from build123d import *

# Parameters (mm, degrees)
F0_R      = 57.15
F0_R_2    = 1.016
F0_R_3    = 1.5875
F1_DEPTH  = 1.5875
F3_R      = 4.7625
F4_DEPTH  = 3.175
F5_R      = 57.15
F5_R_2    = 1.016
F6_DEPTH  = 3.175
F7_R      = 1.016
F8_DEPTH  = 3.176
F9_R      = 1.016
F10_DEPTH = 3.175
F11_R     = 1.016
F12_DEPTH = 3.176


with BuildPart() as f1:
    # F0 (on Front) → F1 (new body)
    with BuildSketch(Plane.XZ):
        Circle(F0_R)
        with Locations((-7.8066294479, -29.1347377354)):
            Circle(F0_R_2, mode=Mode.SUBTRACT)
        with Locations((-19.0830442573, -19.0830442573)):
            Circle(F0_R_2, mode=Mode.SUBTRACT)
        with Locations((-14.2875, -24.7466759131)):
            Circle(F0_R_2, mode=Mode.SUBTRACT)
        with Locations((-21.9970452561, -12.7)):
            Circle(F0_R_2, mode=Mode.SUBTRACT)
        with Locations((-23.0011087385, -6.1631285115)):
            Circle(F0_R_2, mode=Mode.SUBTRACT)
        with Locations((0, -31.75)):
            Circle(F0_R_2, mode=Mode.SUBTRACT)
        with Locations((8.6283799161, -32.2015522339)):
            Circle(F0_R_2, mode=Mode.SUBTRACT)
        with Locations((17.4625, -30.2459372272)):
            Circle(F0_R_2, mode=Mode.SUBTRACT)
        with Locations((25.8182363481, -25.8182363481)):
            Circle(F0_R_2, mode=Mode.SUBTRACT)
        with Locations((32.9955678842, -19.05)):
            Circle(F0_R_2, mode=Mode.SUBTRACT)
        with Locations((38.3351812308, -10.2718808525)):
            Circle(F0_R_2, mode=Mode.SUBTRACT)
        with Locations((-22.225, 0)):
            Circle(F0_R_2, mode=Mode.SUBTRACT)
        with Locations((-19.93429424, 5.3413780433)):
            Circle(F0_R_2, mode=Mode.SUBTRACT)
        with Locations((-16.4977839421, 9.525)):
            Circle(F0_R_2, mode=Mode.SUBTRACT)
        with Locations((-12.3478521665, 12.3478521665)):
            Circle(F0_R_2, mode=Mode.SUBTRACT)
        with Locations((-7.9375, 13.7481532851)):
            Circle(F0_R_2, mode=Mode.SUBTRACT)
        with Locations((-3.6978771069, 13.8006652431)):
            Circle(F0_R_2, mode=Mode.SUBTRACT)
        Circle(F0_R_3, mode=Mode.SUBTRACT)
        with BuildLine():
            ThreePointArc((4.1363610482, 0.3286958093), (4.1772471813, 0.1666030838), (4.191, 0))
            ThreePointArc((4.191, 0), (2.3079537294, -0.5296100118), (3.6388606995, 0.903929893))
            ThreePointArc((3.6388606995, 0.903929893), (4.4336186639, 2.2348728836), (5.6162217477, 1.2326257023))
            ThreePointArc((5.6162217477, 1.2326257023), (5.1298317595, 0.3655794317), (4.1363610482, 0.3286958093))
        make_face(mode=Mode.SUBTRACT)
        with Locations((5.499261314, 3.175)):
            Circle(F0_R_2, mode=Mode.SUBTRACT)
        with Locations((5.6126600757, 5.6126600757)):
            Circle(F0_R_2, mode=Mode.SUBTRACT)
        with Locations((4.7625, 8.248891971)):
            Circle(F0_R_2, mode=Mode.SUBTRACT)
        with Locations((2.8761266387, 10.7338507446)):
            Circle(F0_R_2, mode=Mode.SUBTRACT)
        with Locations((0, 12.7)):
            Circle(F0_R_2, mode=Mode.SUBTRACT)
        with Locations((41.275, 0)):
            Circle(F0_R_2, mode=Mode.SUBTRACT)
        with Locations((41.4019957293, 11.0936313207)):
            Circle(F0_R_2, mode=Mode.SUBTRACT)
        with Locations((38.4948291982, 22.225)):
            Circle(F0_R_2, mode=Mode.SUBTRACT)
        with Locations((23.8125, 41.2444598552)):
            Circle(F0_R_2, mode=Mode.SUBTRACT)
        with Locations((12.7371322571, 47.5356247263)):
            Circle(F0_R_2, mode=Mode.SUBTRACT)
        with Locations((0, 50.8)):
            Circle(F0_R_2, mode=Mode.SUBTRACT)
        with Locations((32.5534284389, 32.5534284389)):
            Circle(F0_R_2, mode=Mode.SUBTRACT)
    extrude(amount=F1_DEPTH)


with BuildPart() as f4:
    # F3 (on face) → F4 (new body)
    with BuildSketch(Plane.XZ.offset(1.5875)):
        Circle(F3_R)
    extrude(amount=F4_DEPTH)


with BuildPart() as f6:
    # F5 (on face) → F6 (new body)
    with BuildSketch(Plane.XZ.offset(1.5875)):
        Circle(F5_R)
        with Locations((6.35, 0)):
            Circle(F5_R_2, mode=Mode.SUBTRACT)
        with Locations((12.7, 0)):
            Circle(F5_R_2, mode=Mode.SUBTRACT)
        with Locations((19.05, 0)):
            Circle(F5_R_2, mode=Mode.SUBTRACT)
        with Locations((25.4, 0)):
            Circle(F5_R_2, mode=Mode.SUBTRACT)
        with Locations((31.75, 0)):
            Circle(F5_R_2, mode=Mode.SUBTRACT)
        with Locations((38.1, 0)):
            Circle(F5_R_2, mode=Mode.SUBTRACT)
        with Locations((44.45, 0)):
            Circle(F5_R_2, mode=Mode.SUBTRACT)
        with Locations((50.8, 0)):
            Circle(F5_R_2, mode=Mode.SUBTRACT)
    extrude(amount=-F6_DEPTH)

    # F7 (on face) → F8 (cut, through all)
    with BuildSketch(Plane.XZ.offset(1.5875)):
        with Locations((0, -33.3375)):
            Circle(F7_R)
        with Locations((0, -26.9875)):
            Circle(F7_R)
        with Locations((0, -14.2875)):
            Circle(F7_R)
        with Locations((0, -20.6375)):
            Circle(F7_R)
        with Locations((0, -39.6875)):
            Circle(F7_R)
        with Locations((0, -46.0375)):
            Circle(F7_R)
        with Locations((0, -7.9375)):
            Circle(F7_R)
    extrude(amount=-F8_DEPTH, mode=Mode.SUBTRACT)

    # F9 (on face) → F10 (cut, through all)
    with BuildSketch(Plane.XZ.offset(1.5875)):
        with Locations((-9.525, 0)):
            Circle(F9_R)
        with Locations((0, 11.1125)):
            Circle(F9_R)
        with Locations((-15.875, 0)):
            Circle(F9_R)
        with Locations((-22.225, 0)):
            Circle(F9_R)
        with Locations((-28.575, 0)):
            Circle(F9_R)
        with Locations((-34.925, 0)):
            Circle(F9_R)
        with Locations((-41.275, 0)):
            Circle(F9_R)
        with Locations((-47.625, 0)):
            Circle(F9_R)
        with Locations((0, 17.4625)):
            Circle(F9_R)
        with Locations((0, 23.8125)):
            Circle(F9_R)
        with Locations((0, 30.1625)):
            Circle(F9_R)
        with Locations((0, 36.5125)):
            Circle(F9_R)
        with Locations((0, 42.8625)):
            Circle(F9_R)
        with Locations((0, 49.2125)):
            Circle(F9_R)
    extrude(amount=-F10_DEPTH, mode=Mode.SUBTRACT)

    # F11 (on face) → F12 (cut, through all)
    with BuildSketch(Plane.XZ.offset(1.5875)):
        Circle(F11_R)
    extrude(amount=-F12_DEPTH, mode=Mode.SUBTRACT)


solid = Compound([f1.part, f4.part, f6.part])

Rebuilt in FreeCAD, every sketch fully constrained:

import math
import FreeCAD as App
import Part
import Sketcher
Q = App.Units.Quantity

doc = App.newDocument("Part")
body = doc.addObject("PartDesign::Body", "Body")

sketch1 = body.newObject("Sketcher::SketchObject", "Sketch")
sketch1.AttachmentSupport = (doc.getObject("XZ_Plane"), [""])
sketch1.MapMode = "FlatFace"
sketch1.addGeometry(Part.Circle(App.Vector(0, 0, 0), App.Vector(0, 0, 1), 57.15), False)
sketch1.addGeometry(Part.Circle(App.Vector(-7.81, -29.13, 0), App.Vector(0, 0, 1), 1.02), False)
sketch1.addGeometry(Part.Circle(App.Vector(-14.29, -24.75, 0), App.Vector(0, 0, 1), 1.02), False)
sketch1.addGeometry(Part.Circle(App.Vector(-19.08, -19.08, 0), App.Vector(0, 0, 1), 1.02), False)
sketch1.addGeometry(Part.Circle(App.Vector(-22, -12.7, 0), App.Vector(0, 0, 1), 1.02), False)
sketch1.addGeometry(Part.Circle(App.Vector(0, -31.75, 0), App.Vector(0, 0, 1), 1.02), False)
sketch1.addGeometry(Part.Circle(App.Vector(8.63, -32.2, 0), App.Vector(0, 0, 1), 1.02), False)
sketch1.addGeometry(Part.Circle(App.Vector(-23, -6.16, 0), App.Vector(0, 0, 1), 1.02), False)
sketch1.addGeometry(Part.Circle(App.Vector(-22.23, 0, 0), App.Vector(0, 0, 1), 1.02), False)
sketch1.addGeometry(Part.Circle(App.Vector(-19.93, 5.34, 0), App.Vector(0, 0, 1), 1.02), False)
sketch1.addGeometry(Part.Circle(App.Vector(0, 0, 0), App.Vector(0, 0, 1), 1.59), False)
sketch1.addGeometry(Part.ArcOfCircle(Part.Circle(App.Vector(4.6, 1.23, 0), App.Vector(0, 0, 1), 1.02), math.radians(-117), math.radians(0)), False)
sketch1.addGeometry(Part.ArcOfCircle(Part.Circle(App.Vector(3.17, 0, 0), App.Vector(0, 0, 1), 1.02), math.radians(0), math.radians(18.88)), False)
sketch1.addGeometry(Part.ArcOfCircle(Part.Circle(App.Vector(3.17, 0, 0), App.Vector(0, 0, 1), 1.02), math.radians(63), math.radians(360)), False)
sketch1.addGeometry(Part.ArcOfCircle(Part.Circle(App.Vector(4.6, 1.23, 0), App.Vector(0, 0, 1), 1.02), math.radians(0), math.radians(199)), False)
sketch1.addGeometry(Part.Circle(App.Vector(5.5, 3.17, 0), App.Vector(0, 0, 1), 1.02), False)
sketch1.addGeometry(Part.Circle(App.Vector(4.76, 8.25, 0), App.Vector(0, 0, 1), 1.02), False)
sketch1.addGeometry(Part.Circle(App.Vector(5.61, 5.61, 0), App.Vector(0, 0, 1), 1.02), False)
sketch1.addGeometry(Part.Circle(App.Vector(17.46, -30.25, 0), App.Vector(0, 0, 1), 1.02), False)
sketch1.addGeometry(Part.Circle(App.Vector(25.82, -25.82, 0), App.Vector(0, 0, 1), 1.02), False)
sketch1.addGeometry(Part.Circle(App.Vector(33, -19.05, 0), App.Vector(0, 0, 1), 1.02), False)
sketch1.addGeometry(Part.Circle(App.Vector(38.34, -10.27, 0), App.Vector(0, 0, 1), 1.02), False)
sketch1.addGeometry(Part.Circle(App.Vector(41.27, 0, 0), App.Vector(0, 0, 1), 1.02), False)
sketch1.addGeometry(Part.Circle(App.Vector(-16.5, 9.53, 0), App.Vector(0, 0, 1), 1.02), False)
sketch1.addGeometry(Part.Circle(App.Vector(-12.35, 12.35, 0), App.Vector(0, 0, 1), 1.02), False)
sketch1.addGeometry(Part.Circle(App.Vector(-7.94, 13.75, 0), App.Vector(0, 0, 1), 1.02), False)
sketch1.addGeometry(Part.Circle(App.Vector(-3.7, 13.8, 0), App.Vector(0, 0, 1), 1.02), False)
sketch1.addGeometry(Part.Circle(App.Vector(0, 12.7, 0), App.Vector(0, 0, 1), 1.02), False)
sketch1.addGeometry(Part.Circle(App.Vector(2.88, 10.73, 0), App.Vector(0, 0, 1), 1.02), False)
sketch1.addGeometry(Part.Circle(App.Vector(0, 50.8, 0), App.Vector(0, 0, 1), 1.02), False)
sketch1.addGeometry(Part.Circle(App.Vector(41.4, 11.09, 0), App.Vector(0, 0, 1), 1.02), False)
sketch1.addGeometry(Part.Circle(App.Vector(38.49, 22.23, 0), App.Vector(0, 0, 1), 1.02), False)
sketch1.addGeometry(Part.Circle(App.Vector(12.74, 47.54, 0), App.Vector(0, 0, 1), 1.02), False)
sketch1.addGeometry(Part.Circle(App.Vector(23.81, 41.24, 0), App.Vector(0, 0, 1), 1.02), False)
sketch1.addGeometry(Part.Circle(App.Vector(32.55, 32.55, 0), App.Vector(0, 0, 1), 1.02), False)
sketch1.addConstraint(Sketcher.Constraint("Coincident", 11, 1, 12, 2))
sketch1.addConstraint(Sketcher.Constraint("Tangent", 12, 1, 13, 2))
sketch1.addConstraint(Sketcher.Constraint("Coincident", 13, 1, 14, 2))
sketch1.addConstraint(Sketcher.Constraint("Tangent", 14, 1, 11, 2))
sketch1.addConstraint(Sketcher.Constraint("Coincident", 0, 3, -1, 1))
sketch1.addConstraint(Sketcher.Constraint("Coincident", 10, 3, -1, 1))
sketch1.addConstraint(Sketcher.Constraint("Equal", 1, 2))
sketch1.addConstraint(Sketcher.Constraint("Equal", 2, 3))
sketch1.addConstraint(Sketcher.Constraint("Equal", 3, 4))
sketch1.addConstraint(Sketcher.Constraint("Equal", 4, 5))
sketch1.addConstraint(Sketcher.Constraint("Equal", 5, 6))
sketch1.addConstraint(Sketcher.Constraint("Equal", 6, 7))
sketch1.addConstraint(Sketcher.Constraint("Equal", 7, 8))
sketch1.addConstraint(Sketcher.Constraint("Equal", 8, 9))
sketch1.addConstraint(Sketcher.Constraint("Equal", 9, 11))
sketch1.addConstraint(Sketcher.Constraint("Equal", 11, 12))
sketch1.addConstraint(Sketcher.Constraint("Equal", 12, 13))
sketch1.addConstraint(Sketcher.Constraint("Equal", 13, 14))
sketch1.addConstraint(Sketcher.Constraint("Equal", 14, 15))
sketch1.addConstraint(Sketcher.Constraint("Equal", 15, 16))
sketch1.addConstraint(Sketcher.Constraint("Equal", 16, 17))
sketch1.addConstraint(Sketcher.Constraint("Equal", 17, 18))
sketch1.addConstraint(Sketcher.Constraint("Equal", 18, 19))
sketch1.addConstraint(Sketcher.Constraint("Equal", 19, 20))
sketch1.addConstraint(Sketcher.Constraint("Equal", 20, 21))
sketch1.addConstraint(Sketcher.Constraint("Equal", 21, 22))
sketch1.addConstraint(Sketcher.Constraint("Equal", 22, 23))
sketch1.addConstraint(Sketcher.Constraint("Equal", 23, 24))
sketch1.addConstraint(Sketcher.Constraint("Equal", 24, 25))
sketch1.addConstraint(Sketcher.Constraint("Equal", 25, 26))
sketch1.addConstraint(Sketcher.Constraint("Equal", 26, 27))
sketch1.addConstraint(Sketcher.Constraint("Equal", 27, 28))
sketch1.addConstraint(Sketcher.Constraint("Equal", 28, 29))
sketch1.addConstraint(Sketcher.Constraint("Equal", 29, 30))
sketch1.addConstraint(Sketcher.Constraint("Equal", 30, 31))
sketch1.addConstraint(Sketcher.Constraint("Equal", 31, 32))
sketch1.addConstraint(Sketcher.Constraint("Equal", 32, 33))
sketch1.addConstraint(Sketcher.Constraint("Equal", 33, 34))
sketch1.addConstraint(Sketcher.Constraint("PointOnObject", 5, 3, -2))
sketch1.addConstraint(Sketcher.Constraint("PointOnObject", 8, 3, -1))
sketch1.addConstraint(Sketcher.Constraint("PointOnObject", 12, 3, -1))
sketch1.addConstraint(Sketcher.Constraint("PointOnObject", 22, 3, -1))
sketch1.addConstraint(Sketcher.Constraint("PointOnObject", 27, 3, -2))
sketch1.addConstraint(Sketcher.Constraint("PointOnObject", 29, 3, -2))
sketch1.addConstraint(Sketcher.Constraint("PointOnObject", 12, 1, -1))
sketch1.addConstraint(Sketcher.Constraint("Horizontal", 11, 3, 14, 1))
sketch1.addConstraint(Sketcher.Constraint("Diameter", 0, Q("4.5 in")))
sketch1.addConstraint(Sketcher.Constraint("Diameter", 1, Q("0.08 in")))
sketch1.addConstraint(Sketcher.Constraint("Diameter", 10, Q("0.125 in")))
sketch1.addConstraint(Sketcher.Constraint("DistanceY", -1, 1, 29, 3, Q("2 in")))
sketch1.addConstraint(Sketcher.Constraint("DistanceX", 8, 3, 12, 3, Q("1 in")))
sketch1.addConstraint(Sketcher.Constraint("DistanceY", 4, 3, -1, 1, Q("0.5 in")))
sketch1.addConstraint(Sketcher.Constraint("DistanceY", -1, 1, 27, 3, Q("0.5 in")))
sketch1.addConstraint(Sketcher.Constraint("DistanceX", 25, 3, 16, 3, Q("0.5 in")))
sketch1.addConstraint(Sketcher.Constraint("DistanceY", 5, 3, -1, 1, Q("1.25 in")))
sketch1.addConstraint(Sketcher.Constraint("DistanceY", 20, 3, -1, 1, Q("0.75 in")))
sketch1.addConstraint(Sketcher.Constraint("DistanceX", -1, 1, 30, 3, Q("1.6299998 in")))
sketch1.addConstraint(Sketcher.Constraint("DistanceX", 2, 3, 18, 3, Q("1.25 in")))
sketch1.addConstraint(Sketcher.Constraint("DistanceX", 2, 3, -1, 1, Q("0.5625 in")))
sketch1.addConstraint(Sketcher.Constraint("DistanceX", 8, 3, -1, 1, Q("0.875 in")))
sketch1.addConstraint(Sketcher.Constraint("DistanceY", -1, 1, 15, 3, Q("0.125 in")))
sketch1.addConstraint(Sketcher.Constraint("DistanceX", -1, 1, 16, 3, Q("0.1875 in")))
sketch1.addConstraint(Sketcher.Constraint("DistanceX", -1, 1, 22, 3, Q("1.625 in")))
sketch1.addConstraint(Sketcher.Constraint("DistanceY", -1, 1, 23, 3, Q("0.375 in")))
sketch1.addConstraint(Sketcher.Constraint("DistanceY", -1, 1, 31, 3, Q("0.875 in")))
sketch1.addConstraint(Sketcher.Constraint("DistanceX", -1, 1, 33, 3, Q("0.9375 in")))
sketch1.addConstraint(Sketcher.Constraint("DistanceX", -1, 1, 6, 3, Q("0.3397 in")))
sketch1.addConstraint(Sketcher.Constraint("DistanceX", 4, 3, 3, 3, Q("2.914001 mm")))
sketch1.addConstraint(Sketcher.Constraint("DistanceX", 15, 3, 17, 3, Q("0.113399 mm")))
sketch1.addConstraint(Sketcher.Constraint("DistanceY", 18, 3, 1, 3, Q("1.111199 mm")))
sketch1.addConstraint(Sketcher.Constraint("DistanceY", 18, 3, 19, 3, Q("4.427701 mm")))
sketch1.addConstraint(Sketcher.Constraint("DistanceY", 24, 3, 25, 3, Q("1.400301 mm")))
sketch1.addConstraint(Sketcher.Constraint("DistanceX", 34, 3, 31, 3, Q("5.941401 mm")))
sketch1.addConstraint(Sketcher.Constraint("DistanceX", 11, 1, 15, 3, Q("1.3629 mm")))
sketch1.addConstraint(Sketcher.Constraint("DistanceX", 13, 1, 11, 1, Q("0.4975 mm")))
sketch1.addConstraint(Sketcher.Constraint("DistanceX", 1, 3, -1, 1, Q("7.806629 mm")))
sketch1.addConstraint(Sketcher.Constraint("DistanceX", 7, 3, -1, 1, Q("23.001109 mm")))
sketch1.addConstraint(Sketcher.Constraint("DistanceY", 7, 3, -1, 1, Q("6.163129 mm")))
sketch1.addConstraint(Sketcher.Constraint("DistanceY", -1, 1, 9, 3, Q("5.341378 mm")))
sketch1.addConstraint(Sketcher.Constraint("DistanceX", -1, 1, 11, 3, Q("4.600222 mm")))
sketch1.addConstraint(Sketcher.Constraint("DistanceY", -1, 1, 16, 3, Q("8.248892 mm")))
sketch1.addConstraint(Sketcher.Constraint("DistanceY", -1, 1, 17, 3, Q("5.61266 mm")))
sketch1.addConstraint(Sketcher.Constraint("DistanceX", -1, 1, 21, 3, Q("38.335181 mm")))
sketch1.addConstraint(Sketcher.Constraint("DistanceY", 21, 3, -1, 1, Q("10.271881 mm")))
sketch1.addConstraint(Sketcher.Constraint("DistanceY", -1, 1, 28, 3, Q("10.733851 mm")))
sketch1.addConstraint(Sketcher.Constraint("DistanceY", -1, 1, 30, 3, Q("11.093631 mm")))
sketch1.addConstraint(Sketcher.Constraint("DistanceX", -1, 1, 31, 3, Q("38.494829 mm")))
sketch1.addConstraint(Sketcher.Constraint("DistanceY", -1, 1, 33, 3, Q("41.24446 mm")))
sketch1.addConstraint(Sketcher.Constraint("DistanceY", -1, 1, 34, 3, Q("32.553428 mm")))
sketch1.addConstraint(Sketcher.Constraint("DistanceY", 1, 3, 2, 3, Q("4.388062 mm")))
sketch1.addConstraint(Sketcher.Constraint("DistanceY", 2, 3, 3, 3, Q("5.663632 mm")))
sketch1.addConstraint(Sketcher.Constraint("DistanceY", 1, 3, 7, 3, Q("22.971609 mm")))
sketch1.addConstraint(Sketcher.Constraint("DistanceX", 4, 3, 9, 3, Q("2.062751 mm")))
sketch1.addConstraint(Sketcher.Constraint("DistanceX", 19, 3, 20, 3, Q("7.177332 mm")))
sketch1.addConstraint(Sketcher.Constraint("DistanceX", 9, 3, 23, 3, Q("3.43651 mm")))
sketch1.addConstraint(Sketcher.Constraint("DistanceX", 23, 3, 24, 3, Q("4.149932 mm")))
sketch1.addConstraint(Sketcher.Constraint("DistanceY", 16, 3, 25, 3, Q("5.499261 mm")))
sketch1.addConstraint(Sketcher.Constraint("DistanceY", 25, 3, 26, 3, Q("0.052512 mm")))
sketch1.addConstraint(Sketcher.Constraint("DistanceX", 26, 3, 32, 3, Q("16.435009 mm")))
sketch1.addConstraint(Sketcher.Constraint("DistanceY", 26, 3, 32, 3, Q("33.734959 mm")))
sketch1.addConstraint(Sketcher.Constraint("DistanceX", 3, 3, -1, 1, Q("19.083044 mm")))
sketch1.addConstraint(Sketcher.Constraint("DistanceY", 6, 3, -1, 1, Q("32.201552 mm")))
sketch1.addConstraint(Sketcher.Constraint("DistanceX", -1, 1, 19, 3, Q("25.818236 mm")))
sketch1.addConstraint(Sketcher.Constraint("DistanceX", 26, 3, -1, 1, Q("3.697877 mm")))
sketch1.addConstraint(Sketcher.Constraint("DistanceX", -1, 1, 28, 3, Q("2.876127 mm")))
pad1 = body.newObject("PartDesign::Pad", "Pad")
pad1.Profile = sketch1
pad1.Length = Q("0.0625 in")
body2 = doc.addObject("PartDesign::Body", "Body001")

sketch2 = body2.newObject("Sketcher::SketchObject", "Sketch001")
sketch2.AttachmentSupport = (doc.getObject("XZ_Plane001"), [""])
sketch2.MapMode = "FlatFace"
sketch2.AttachmentOffset = App.Placement(App.Vector(0, 0, 0.0625 * 25.4), App.Rotation())
sketch2.addGeometry(Part.Circle(App.Vector(0, 0, 0), App.Vector(0, 0, 1), 4.8), False)
sketch2.addConstraint(Sketcher.Constraint("Coincident", 0, 3, -1, 1))
sketch2.addConstraint(Sketcher.Constraint("Diameter", 0, Q("0.375 in")))
pad2 = body2.newObject("PartDesign::Pad", "Pad001")
pad2.Profile = sketch2
pad2.Length = Q("0.125 in")
body3 = doc.addObject("PartDesign::Body", "Body002")

sketch3 = body3.newObject("Sketcher::SketchObject", "Sketch002")
sketch3.AttachmentSupport = (doc.getObject("XZ_Plane002"), [""])
sketch3.MapMode = "FlatFace"
sketch3.AttachmentOffset = App.Placement(App.Vector(0, 0, 0.0625 * 25.4), App.Rotation())
sketch3.addGeometry(Part.Circle(App.Vector(0, 0, 0), App.Vector(0, 0, 1), 57.1), False)
sketch3.addGeometry(Part.Circle(App.Vector(6.3, 0, 0), App.Vector(0, 0, 1), 1), False)
sketch3.addGeometry(Part.Circle(App.Vector(12.7, 0, 0), App.Vector(0, 0, 1), 1), False)
sketch3.addGeometry(Part.Circle(App.Vector(19.1, 0, 0), App.Vector(0, 0, 1), 1), False)
sketch3.addGeometry(Part.Circle(App.Vector(25.4, 0, 0), App.Vector(0, 0, 1), 1), False)
sketch3.addGeometry(Part.Circle(App.Vector(31.8, 0, 0), App.Vector(0, 0, 1), 1), False)
sketch3.addGeometry(Part.Circle(App.Vector(38.1, 0, 0), App.Vector(0, 0, 1), 1), False)
sketch3.addGeometry(Part.Circle(App.Vector(44.5, 0, 0), App.Vector(0, 0, 1), 1), False)
sketch3.addGeometry(Part.Circle(App.Vector(50.8, 0, 0), App.Vector(0, 0, 1), 1), False)
sketch3.addConstraint(Sketcher.Constraint("Coincident", 0, 3, -1, 1))
sketch3.addConstraint(Sketcher.Constraint("Equal", 1, 2))
sketch3.addConstraint(Sketcher.Constraint("Equal", 2, 3))
sketch3.addConstraint(Sketcher.Constraint("Equal", 3, 4))
sketch3.addConstraint(Sketcher.Constraint("Equal", 4, 5))
sketch3.addConstraint(Sketcher.Constraint("Equal", 5, 6))
sketch3.addConstraint(Sketcher.Constraint("Equal", 6, 7))
sketch3.addConstraint(Sketcher.Constraint("Equal", 7, 8))
sketch3.addConstraint(Sketcher.Constraint("PointOnObject", 1, 3, -1))
sketch3.addConstraint(Sketcher.Constraint("PointOnObject", 2, 3, -1))
sketch3.addConstraint(Sketcher.Constraint("PointOnObject", 3, 3, -1))
sketch3.addConstraint(Sketcher.Constraint("PointOnObject", 4, 3, -1))
sketch3.addConstraint(Sketcher.Constraint("PointOnObject", 5, 3, -1))
sketch3.addConstraint(Sketcher.Constraint("PointOnObject", 6, 3, -1))
sketch3.addConstraint(Sketcher.Constraint("PointOnObject", 7, 3, -1))
sketch3.addConstraint(Sketcher.Constraint("PointOnObject", 8, 3, -1))
sketch3.addConstraint(Sketcher.Constraint("Diameter", 0, Q("4.5 in")))
sketch3.addConstraint(Sketcher.Constraint("Diameter", 1, Q("0.08 in")))
sketch3.addConstraint(Sketcher.Constraint("DistanceX", -1, 1, 4, 3, Q("1 in")))
sketch3.addConstraint(Sketcher.Constraint("DistanceX", -1, 1, 8, 3, Q("2 in")))
sketch3.addConstraint(Sketcher.Constraint("DistanceX", 1, 3, 5, 3, Q("1 in")))
sketch3.addConstraint(Sketcher.Constraint("DistanceX", 2, 3, 6, 3, Q("1 in")))
sketch3.addConstraint(Sketcher.Constraint("DistanceX", 3, 3, 7, 3, Q("1 in")))
sketch3.addConstraint(Sketcher.Constraint("DistanceX", -1, 1, 2, 3, Q("0.5 in")))
sketch3.addConstraint(Sketcher.Constraint("DistanceX", 1, 3, 3, 3, Q("0.5 in")))
sketch3.addConstraint(Sketcher.Constraint("DistanceX", -1, 1, 1, 3, Q("0.25 in")))
pad3 = body3.newObject("PartDesign::Pad", "Pad002")
pad3.Profile = sketch3
pad3.Length = Q("0.125 in")
pad3.Reversed = True

sketch4 = body3.newObject("Sketcher::SketchObject", "Sketch003")
sketch4.AttachmentSupport = (doc.getObject("XZ_Plane002"), [""])
sketch4.MapMode = "FlatFace"
sketch4.AttachmentOffset = App.Placement(App.Vector(0, 0, 0.0625 * 25.4), App.Rotation())
sketch4.addGeometry(Part.Circle(App.Vector(0, -33.3, 0), App.Vector(0, 0, 1), 1), False)
sketch4.addGeometry(Part.Circle(App.Vector(0, -27, 0), App.Vector(0, 0, 1), 1), False)
sketch4.addGeometry(Part.Circle(App.Vector(0, -14.3, 0), App.Vector(0, 0, 1), 1), False)
sketch4.addGeometry(Part.Circle(App.Vector(0, -20.6, 0), App.Vector(0, 0, 1), 1), False)
sketch4.addGeometry(Part.Circle(App.Vector(0, -39.7, 0), App.Vector(0, 0, 1), 1), False)
sketch4.addGeometry(Part.Circle(App.Vector(0, -46, 0), App.Vector(0, 0, 1), 1), False)
sketch4.addGeometry(Part.Circle(App.Vector(0, -7.9, 0), App.Vector(0, 0, 1), 1), False)
sketch4.addConstraint(Sketcher.Constraint("Equal", 0, 1))
sketch4.addConstraint(Sketcher.Constraint("Equal", 1, 2))
sketch4.addConstraint(Sketcher.Constraint("Equal", 2, 3))
sketch4.addConstraint(Sketcher.Constraint("Equal", 3, 4))
sketch4.addConstraint(Sketcher.Constraint("Equal", 4, 5))
sketch4.addConstraint(Sketcher.Constraint("Equal", 5, 6))
sketch4.addConstraint(Sketcher.Constraint("PointOnObject", 0, 3, -2))
sketch4.addConstraint(Sketcher.Constraint("PointOnObject", 1, 3, -2))
sketch4.addConstraint(Sketcher.Constraint("PointOnObject", 2, 3, -2))
sketch4.addConstraint(Sketcher.Constraint("PointOnObject", 3, 3, -2))
sketch4.addConstraint(Sketcher.Constraint("PointOnObject", 4, 3, -2))
sketch4.addConstraint(Sketcher.Constraint("PointOnObject", 5, 3, -2))
sketch4.addConstraint(Sketcher.Constraint("PointOnObject", 6, 3, -2))
sketch4.addConstraint(Sketcher.Constraint("Diameter", 0, Q("0.08 in")))
sketch4.addConstraint(Sketcher.Constraint("DistanceY", 4, 3, 2, 3, Q("1 in")))
sketch4.addConstraint(Sketcher.Constraint("DistanceY", 5, 3, 3, 3, Q("1 in")))
sketch4.addConstraint(Sketcher.Constraint("DistanceY", 0, 3, 6, 3, Q("1 in")))
sketch4.addConstraint(Sketcher.Constraint("DistanceY", 1, 3, 2, 3, Q("0.5 in")))
sketch4.addConstraint(Sketcher.Constraint("DistanceY", 0, 3, 3, 3, Q("0.5 in")))
sketch4.addConstraint(Sketcher.Constraint("DistanceY", 0, 3, 1, 3, Q("0.25 in")))
sketch4.addConstraint(Sketcher.Constraint("DistanceY", 0, 3, -1, 1, Q("1.3125 in")))
pocket1 = body3.newObject("PartDesign::Pocket", "Pocket")
pocket1.Profile = sketch4
pocket1.Type = "ThroughAll"

sketch5 = body3.newObject("Sketcher::SketchObject", "Sketch004")
sketch5.AttachmentSupport = (doc.getObject("XZ_Plane002"), [""])
sketch5.MapMode = "FlatFace"
sketch5.AttachmentOffset = App.Placement(App.Vector(0, 0, 0.0625 * 25.4), App.Rotation())
sketch5.addGeometry(Part.Circle(App.Vector(-9.5, 0, 0), App.Vector(0, 0, 1), 1), False)
sketch5.addGeometry(Part.Circle(App.Vector(0, 11.1, 0), App.Vector(0, 0, 1), 1), False)
sketch5.addGeometry(Part.Circle(App.Vector(-15.9, 0, 0), App.Vector(0, 0, 1), 1), False)
sketch5.addGeometry(Part.Circle(App.Vector(-22.2, 0, 0), App.Vector(0, 0, 1), 1), False)
sketch5.addGeometry(Part.Circle(App.Vector(-28.6, 0, 0), App.Vector(0, 0, 1), 1), False)
sketch5.addGeometry(Part.Circle(App.Vector(-34.9, 0, 0), App.Vector(0, 0, 1), 1), False)
sketch5.addGeometry(Part.Circle(App.Vector(-41.3, 0, 0), App.Vector(0, 0, 1), 1), False)
sketch5.addGeometry(Part.Circle(App.Vector(-47.6, 0, 0), App.Vector(0, 0, 1), 1), False)
sketch5.addGeometry(Part.Circle(App.Vector(0, 17.5, 0), App.Vector(0, 0, 1), 1), False)
sketch5.addGeometry(Part.Circle(App.Vector(0, 23.8, 0), App.Vector(0, 0, 1), 1), False)
sketch5.addGeometry(Part.Circle(App.Vector(0, 30.2, 0), App.Vector(0, 0, 1), 1), False)
sketch5.addGeometry(Part.Circle(App.Vector(0, 36.5, 0), App.Vector(0, 0, 1), 1), False)
sketch5.addGeometry(Part.Circle(App.Vector(0, 42.9, 0), App.Vector(0, 0, 1), 1), False)
sketch5.addGeometry(Part.Circle(App.Vector(0, 49.2, 0), App.Vector(0, 0, 1), 1), False)
sketch5.addConstraint(Sketcher.Constraint("Equal", 0, 1))
sketch5.addConstraint(Sketcher.Constraint("Equal", 1, 2))
sketch5.addConstraint(Sketcher.Constraint("Equal", 2, 3))
sketch5.addConstraint(Sketcher.Constraint("Equal", 3, 4))
sketch5.addConstraint(Sketcher.Constraint("Equal", 4, 5))
sketch5.addConstraint(Sketcher.Constraint("Equal", 5, 6))
sketch5.addConstraint(Sketcher.Constraint("Equal", 6, 7))
sketch5.addConstraint(Sketcher.Constraint("Equal", 7, 8))
sketch5.addConstraint(Sketcher.Constraint("Equal", 8, 9))
sketch5.addConstraint(Sketcher.Constraint("Equal", 9, 10))
sketch5.addConstraint(Sketcher.Constraint("Equal", 10, 11))
sketch5.addConstraint(Sketcher.Constraint("Equal", 11, 12))
sketch5.addConstraint(Sketcher.Constraint("Equal", 12, 13))
sketch5.addConstraint(Sketcher.Constraint("PointOnObject", 0, 3, -1))
sketch5.addConstraint(Sketcher.Constraint("PointOnObject", 1, 3, -2))
sketch5.addConstraint(Sketcher.Constraint("PointOnObject", 2, 3, -1))
sketch5.addConstraint(Sketcher.Constraint("PointOnObject", 3, 3, -1))
sketch5.addConstraint(Sketcher.Constraint("PointOnObject", 4, 3, -1))
sketch5.addConstraint(Sketcher.Constraint("PointOnObject", 5, 3, -1))
sketch5.addConstraint(Sketcher.Constraint("PointOnObject", 6, 3, -1))
sketch5.addConstraint(Sketcher.Constraint("PointOnObject", 7, 3, -1))
sketch5.addConstraint(Sketcher.Constraint("PointOnObject", 8, 3, -2))
sketch5.addConstraint(Sketcher.Constraint("PointOnObject", 9, 3, -2))
sketch5.addConstraint(Sketcher.Constraint("PointOnObject", 10, 3, -2))
sketch5.addConstraint(Sketcher.Constraint("PointOnObject", 11, 3, -2))
sketch5.addConstraint(Sketcher.Constraint("PointOnObject", 12, 3, -2))
sketch5.addConstraint(Sketcher.Constraint("PointOnObject", 13, 3, -2))
sketch5.addConstraint(Sketcher.Constraint("Diameter", 0, Q("0.08 in")))
sketch5.addConstraint(Sketcher.Constraint("DistanceX", 5, 3, 0, 3, Q("1 in")))
sketch5.addConstraint(Sketcher.Constraint("DistanceX", 6, 3, 2, 3, Q("1 in")))
sketch5.addConstraint(Sketcher.Constraint("DistanceX", 7, 3, 3, 3, Q("1 in")))
sketch5.addConstraint(Sketcher.Constraint("DistanceY", 1, 3, 11, 3, Q("1 in")))
sketch5.addConstraint(Sketcher.Constraint("DistanceY", 8, 3, 12, 3, Q("1 in")))
sketch5.addConstraint(Sketcher.Constraint("DistanceY", 9, 3, 13, 3, Q("1 in")))
sketch5.addConstraint(Sketcher.Constraint("DistanceX", 3, 3, 0, 3, Q("0.5 in")))
sketch5.addConstraint(Sketcher.Constraint("DistanceX", 4, 3, 2, 3, Q("0.5 in")))
sketch5.addConstraint(Sketcher.Constraint("DistanceY", 1, 3, 9, 3, Q("0.5 in")))
sketch5.addConstraint(Sketcher.Constraint("DistanceY", 8, 3, 10, 3, Q("0.5 in")))
sketch5.addConstraint(Sketcher.Constraint("DistanceX", 2, 3, 0, 3, Q("0.25 in")))
sketch5.addConstraint(Sketcher.Constraint("DistanceY", 1, 3, 8, 3, Q("0.25 in")))
sketch5.addConstraint(Sketcher.Constraint("DistanceX", 0, 3, -1, 1, Q("0.375 in")))
sketch5.addConstraint(Sketcher.Constraint("DistanceY", -1, 1, 1, 3, Q("0.4375 in")))
pocket2 = body3.newObject("PartDesign::Pocket", "Pocket001")
pocket2.Profile = sketch5
pocket2.Type = "ThroughAll"

sketch6 = body3.newObject("Sketcher::SketchObject", "Sketch005")
sketch6.AttachmentSupport = (doc.getObject("XZ_Plane002"), [""])
sketch6.MapMode = "FlatFace"
sketch6.AttachmentOffset = App.Placement(App.Vector(0, 0, 0.0625 * 25.4), App.Rotation())
sketch6.addGeometry(Part.Circle(App.Vector(0, 0, 0), App.Vector(0, 0, 1), 1), False)
sketch6.addConstraint(Sketcher.Constraint("Coincident", 0, 3, -1, 1))
sketch6.addConstraint(Sketcher.Constraint("Diameter", 0, Q("0.08 in")))
pocket3 = body3.newObject("PartDesign::Pocket", "Pocket002")
pocket3.Profile = sketch6
pocket3.Type = "ThroughAll"

doc.recompute()
